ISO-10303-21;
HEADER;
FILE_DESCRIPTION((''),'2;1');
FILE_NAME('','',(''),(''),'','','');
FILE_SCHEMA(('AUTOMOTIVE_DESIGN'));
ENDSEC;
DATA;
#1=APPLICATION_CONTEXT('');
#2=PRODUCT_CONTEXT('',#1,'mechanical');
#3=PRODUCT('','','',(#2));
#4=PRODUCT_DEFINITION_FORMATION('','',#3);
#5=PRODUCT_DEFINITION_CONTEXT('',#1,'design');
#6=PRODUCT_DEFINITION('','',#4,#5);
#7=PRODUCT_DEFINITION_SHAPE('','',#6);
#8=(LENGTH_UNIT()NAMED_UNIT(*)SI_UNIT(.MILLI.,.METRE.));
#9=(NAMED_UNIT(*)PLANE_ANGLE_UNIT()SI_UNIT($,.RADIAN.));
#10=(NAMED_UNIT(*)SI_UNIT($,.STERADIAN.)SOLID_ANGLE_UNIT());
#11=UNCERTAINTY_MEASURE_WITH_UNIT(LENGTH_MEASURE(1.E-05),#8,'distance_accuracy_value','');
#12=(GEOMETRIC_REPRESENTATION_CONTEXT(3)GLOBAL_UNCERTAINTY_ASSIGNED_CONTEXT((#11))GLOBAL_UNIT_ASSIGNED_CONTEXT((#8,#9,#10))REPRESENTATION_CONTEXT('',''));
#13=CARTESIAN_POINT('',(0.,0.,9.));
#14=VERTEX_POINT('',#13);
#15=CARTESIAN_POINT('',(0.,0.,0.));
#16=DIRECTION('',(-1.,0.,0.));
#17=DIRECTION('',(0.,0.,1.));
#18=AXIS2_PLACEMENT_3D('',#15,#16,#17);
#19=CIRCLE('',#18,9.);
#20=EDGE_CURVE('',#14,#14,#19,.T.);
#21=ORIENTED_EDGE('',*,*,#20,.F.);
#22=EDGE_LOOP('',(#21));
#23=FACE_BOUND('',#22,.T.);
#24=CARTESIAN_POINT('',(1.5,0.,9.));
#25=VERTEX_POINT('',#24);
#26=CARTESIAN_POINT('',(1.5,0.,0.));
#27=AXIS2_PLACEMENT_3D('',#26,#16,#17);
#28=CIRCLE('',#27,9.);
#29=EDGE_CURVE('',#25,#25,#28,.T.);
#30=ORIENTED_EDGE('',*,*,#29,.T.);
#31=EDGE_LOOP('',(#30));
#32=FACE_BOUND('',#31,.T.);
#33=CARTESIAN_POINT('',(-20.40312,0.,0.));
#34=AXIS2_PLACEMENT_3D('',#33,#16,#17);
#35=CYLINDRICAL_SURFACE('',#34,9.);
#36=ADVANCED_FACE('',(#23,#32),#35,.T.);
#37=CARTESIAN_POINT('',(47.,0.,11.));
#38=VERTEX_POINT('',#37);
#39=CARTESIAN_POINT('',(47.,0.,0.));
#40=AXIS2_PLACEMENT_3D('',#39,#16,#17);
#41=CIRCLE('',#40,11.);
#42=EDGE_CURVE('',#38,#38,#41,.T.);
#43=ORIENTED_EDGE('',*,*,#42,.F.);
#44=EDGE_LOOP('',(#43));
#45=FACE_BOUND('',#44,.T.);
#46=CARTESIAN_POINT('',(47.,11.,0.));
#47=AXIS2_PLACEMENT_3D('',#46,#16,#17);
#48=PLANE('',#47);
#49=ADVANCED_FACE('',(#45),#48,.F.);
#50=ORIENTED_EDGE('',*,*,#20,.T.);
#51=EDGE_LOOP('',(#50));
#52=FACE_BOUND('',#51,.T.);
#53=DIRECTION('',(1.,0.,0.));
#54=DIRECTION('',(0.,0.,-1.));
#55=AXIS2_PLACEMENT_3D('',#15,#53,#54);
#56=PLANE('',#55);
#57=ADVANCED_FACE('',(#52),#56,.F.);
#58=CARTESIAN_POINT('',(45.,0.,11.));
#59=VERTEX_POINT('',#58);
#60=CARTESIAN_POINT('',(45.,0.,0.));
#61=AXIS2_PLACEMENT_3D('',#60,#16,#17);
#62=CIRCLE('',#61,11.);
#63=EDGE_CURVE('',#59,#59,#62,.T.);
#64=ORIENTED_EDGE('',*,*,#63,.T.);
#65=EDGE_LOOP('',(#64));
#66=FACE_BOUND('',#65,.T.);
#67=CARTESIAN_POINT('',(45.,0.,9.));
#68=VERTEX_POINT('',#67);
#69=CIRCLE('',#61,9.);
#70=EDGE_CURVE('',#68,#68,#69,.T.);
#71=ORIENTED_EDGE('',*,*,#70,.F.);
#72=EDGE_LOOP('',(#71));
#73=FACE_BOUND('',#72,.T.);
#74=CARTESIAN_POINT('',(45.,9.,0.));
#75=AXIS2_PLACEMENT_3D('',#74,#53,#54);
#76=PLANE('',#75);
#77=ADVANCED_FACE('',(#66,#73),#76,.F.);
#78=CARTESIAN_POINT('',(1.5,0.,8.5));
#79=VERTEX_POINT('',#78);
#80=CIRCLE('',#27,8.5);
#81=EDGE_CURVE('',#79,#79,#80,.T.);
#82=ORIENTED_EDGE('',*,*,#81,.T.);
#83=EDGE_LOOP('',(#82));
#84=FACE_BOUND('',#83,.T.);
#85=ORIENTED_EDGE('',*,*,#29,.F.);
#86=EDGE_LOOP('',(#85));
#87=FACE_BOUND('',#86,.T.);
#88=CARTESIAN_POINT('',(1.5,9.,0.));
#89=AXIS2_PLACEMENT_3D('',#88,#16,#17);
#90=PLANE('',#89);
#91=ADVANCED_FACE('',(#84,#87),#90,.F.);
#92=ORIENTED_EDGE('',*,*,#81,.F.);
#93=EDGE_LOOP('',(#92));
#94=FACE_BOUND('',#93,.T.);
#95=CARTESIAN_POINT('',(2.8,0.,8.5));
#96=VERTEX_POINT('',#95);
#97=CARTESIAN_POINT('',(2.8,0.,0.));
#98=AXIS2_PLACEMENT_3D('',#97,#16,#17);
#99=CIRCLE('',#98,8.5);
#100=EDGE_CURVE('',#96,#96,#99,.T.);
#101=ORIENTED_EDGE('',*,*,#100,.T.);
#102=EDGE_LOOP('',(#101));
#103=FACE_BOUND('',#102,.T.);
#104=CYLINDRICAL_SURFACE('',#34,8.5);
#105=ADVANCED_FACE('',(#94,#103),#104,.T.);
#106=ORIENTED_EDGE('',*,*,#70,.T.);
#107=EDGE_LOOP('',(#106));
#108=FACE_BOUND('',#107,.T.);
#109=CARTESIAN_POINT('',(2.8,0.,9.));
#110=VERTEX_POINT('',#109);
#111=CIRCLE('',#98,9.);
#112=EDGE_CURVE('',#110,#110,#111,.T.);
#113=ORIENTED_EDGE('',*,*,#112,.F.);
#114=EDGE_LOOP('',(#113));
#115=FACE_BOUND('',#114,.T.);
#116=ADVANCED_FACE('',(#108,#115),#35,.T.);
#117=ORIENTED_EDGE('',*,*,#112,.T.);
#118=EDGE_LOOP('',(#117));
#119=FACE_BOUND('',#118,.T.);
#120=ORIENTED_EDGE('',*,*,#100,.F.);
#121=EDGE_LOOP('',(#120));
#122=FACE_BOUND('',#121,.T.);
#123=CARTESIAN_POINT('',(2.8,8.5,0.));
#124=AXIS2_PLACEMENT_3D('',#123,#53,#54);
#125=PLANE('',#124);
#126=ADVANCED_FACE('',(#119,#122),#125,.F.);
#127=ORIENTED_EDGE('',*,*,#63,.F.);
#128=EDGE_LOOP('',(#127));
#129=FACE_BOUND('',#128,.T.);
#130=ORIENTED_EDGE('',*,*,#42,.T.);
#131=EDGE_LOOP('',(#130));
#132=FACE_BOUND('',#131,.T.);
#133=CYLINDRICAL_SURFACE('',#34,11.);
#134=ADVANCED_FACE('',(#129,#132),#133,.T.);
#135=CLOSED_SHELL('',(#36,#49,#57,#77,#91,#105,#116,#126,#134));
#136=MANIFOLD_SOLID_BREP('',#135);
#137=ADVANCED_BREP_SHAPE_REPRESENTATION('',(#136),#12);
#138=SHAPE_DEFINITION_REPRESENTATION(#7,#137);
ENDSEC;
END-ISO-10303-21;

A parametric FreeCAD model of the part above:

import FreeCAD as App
import Part
import Sketcher
Q = App.Units.Quantity

doc = App.newDocument("Part")
body = doc.addObject("PartDesign::Body", "Body")

sketch1 = body.newObject("Sketcher::SketchObject", "Sketch")
sketch1.AttachmentSupport = (doc.getObject("XY_Plane"), [""])
sketch1.MapMode = "FlatFace"
sketch1.addGeometry([
    Part.LineSegment(App.Vector(0, 9, 0), App.Vector(0, 0, 0)),
    Part.LineSegment(App.Vector(0, 0, 0), App.Vector(47, 0, 0)),
    Part.LineSegment(App.Vector(47, 0, 0), App.Vector(47, 11, 0)),
    Part.LineSegment(App.Vector(47, 11, 0), App.Vector(45, 11, 0)),
    Part.LineSegment(App.Vector(45, 11, 0), App.Vector(45, 9, 0)),
    Part.LineSegment(App.Vector(45, 9, 0), App.Vector(2.8, 9, 0)),
    Part.LineSegment(App.Vector(2.8, 9, 0), App.Vector(2.8, 8.5, 0)),
    Part.LineSegment(App.Vector(2.8, 8.5, 0), App.Vector(1.5, 8.5, 0)),
    Part.LineSegment(App.Vector(1.5, 8.5, 0), App.Vector(1.5, 9, 0)),
    Part.LineSegment(App.Vector(1.5, 9, 0), App.Vector(0, 9, 0)),
], False)
sketch1.addConstraint([
    Sketcher.Constraint("Coincident", 0, 2, 1, 1),
    Sketcher.Constraint("Coincident", 1, 2, 2, 1),
    Sketcher.Constraint("Coincident", 2, 2, 3, 1),
    Sketcher.Constraint("Coincident", 3, 2, 4, 1),
    Sketcher.Constraint("Coincident", 4, 2, 5, 1),
    Sketcher.Constraint("Coincident", 5, 2, 6, 1),
    Sketcher.Constraint("Coincident", 6, 2, 7, 1),
    Sketcher.Constraint("Coincident", 7, 2, 8, 1),
    Sketcher.Constraint("Coincident", 8, 2, 9, 1),
    Sketcher.Constraint("Coincident", 9, 2, 0, 1),
    Sketcher.Constraint("Vertical", 0),
    Sketcher.Constraint("Horizontal", 1),
    Sketcher.Constraint("Vertical", 2),
    Sketcher.Constraint("Horizontal", 3),
    Sketcher.Constraint("Vertical", 4),
    Sketcher.Constraint("Horizontal", 5),
    Sketcher.Constraint("Vertical", 6),
    Sketcher.Constraint("Horizontal", 7),
    Sketcher.Constraint("Vertical", 8),
    Sketcher.Constraint("Horizontal", 9),
    Sketcher.Constraint("Coincident", 0, 2, -1, 1),
    Sketcher.Constraint("Horizontal", 5, 2, 8, 2),
    Sketcher.Constraint("Equal", 3, 4),
    Sketcher.Constraint("DistanceX", 1, 1, 1, 2, Q("47 mm")),
    Sketcher.Constraint("DistanceX", 3, 2, 3, 1, Q("2 mm")),
    Sketcher.Constraint("DistanceY", 0, 2, 0, 1, Q("9 mm")),
    Sketcher.Constraint("DistanceX", 5, 2, 5, 1, Q("42.2 mm")),
    Sketcher.Constraint("DistanceX", 7, 2, 7, 1, Q("1.3 mm")),
    Sketcher.Constraint("DistanceY", 6, 2, 6, 1, Q("0.5 mm")),
])
revolution = body.newObject("PartDesign::Revolution", "Revolution")
revolution.Profile = sketch1
revolution.ReferenceAxis = (sketch1, ["H_Axis"])
revolution.Angle = 360

doc.recompute()
